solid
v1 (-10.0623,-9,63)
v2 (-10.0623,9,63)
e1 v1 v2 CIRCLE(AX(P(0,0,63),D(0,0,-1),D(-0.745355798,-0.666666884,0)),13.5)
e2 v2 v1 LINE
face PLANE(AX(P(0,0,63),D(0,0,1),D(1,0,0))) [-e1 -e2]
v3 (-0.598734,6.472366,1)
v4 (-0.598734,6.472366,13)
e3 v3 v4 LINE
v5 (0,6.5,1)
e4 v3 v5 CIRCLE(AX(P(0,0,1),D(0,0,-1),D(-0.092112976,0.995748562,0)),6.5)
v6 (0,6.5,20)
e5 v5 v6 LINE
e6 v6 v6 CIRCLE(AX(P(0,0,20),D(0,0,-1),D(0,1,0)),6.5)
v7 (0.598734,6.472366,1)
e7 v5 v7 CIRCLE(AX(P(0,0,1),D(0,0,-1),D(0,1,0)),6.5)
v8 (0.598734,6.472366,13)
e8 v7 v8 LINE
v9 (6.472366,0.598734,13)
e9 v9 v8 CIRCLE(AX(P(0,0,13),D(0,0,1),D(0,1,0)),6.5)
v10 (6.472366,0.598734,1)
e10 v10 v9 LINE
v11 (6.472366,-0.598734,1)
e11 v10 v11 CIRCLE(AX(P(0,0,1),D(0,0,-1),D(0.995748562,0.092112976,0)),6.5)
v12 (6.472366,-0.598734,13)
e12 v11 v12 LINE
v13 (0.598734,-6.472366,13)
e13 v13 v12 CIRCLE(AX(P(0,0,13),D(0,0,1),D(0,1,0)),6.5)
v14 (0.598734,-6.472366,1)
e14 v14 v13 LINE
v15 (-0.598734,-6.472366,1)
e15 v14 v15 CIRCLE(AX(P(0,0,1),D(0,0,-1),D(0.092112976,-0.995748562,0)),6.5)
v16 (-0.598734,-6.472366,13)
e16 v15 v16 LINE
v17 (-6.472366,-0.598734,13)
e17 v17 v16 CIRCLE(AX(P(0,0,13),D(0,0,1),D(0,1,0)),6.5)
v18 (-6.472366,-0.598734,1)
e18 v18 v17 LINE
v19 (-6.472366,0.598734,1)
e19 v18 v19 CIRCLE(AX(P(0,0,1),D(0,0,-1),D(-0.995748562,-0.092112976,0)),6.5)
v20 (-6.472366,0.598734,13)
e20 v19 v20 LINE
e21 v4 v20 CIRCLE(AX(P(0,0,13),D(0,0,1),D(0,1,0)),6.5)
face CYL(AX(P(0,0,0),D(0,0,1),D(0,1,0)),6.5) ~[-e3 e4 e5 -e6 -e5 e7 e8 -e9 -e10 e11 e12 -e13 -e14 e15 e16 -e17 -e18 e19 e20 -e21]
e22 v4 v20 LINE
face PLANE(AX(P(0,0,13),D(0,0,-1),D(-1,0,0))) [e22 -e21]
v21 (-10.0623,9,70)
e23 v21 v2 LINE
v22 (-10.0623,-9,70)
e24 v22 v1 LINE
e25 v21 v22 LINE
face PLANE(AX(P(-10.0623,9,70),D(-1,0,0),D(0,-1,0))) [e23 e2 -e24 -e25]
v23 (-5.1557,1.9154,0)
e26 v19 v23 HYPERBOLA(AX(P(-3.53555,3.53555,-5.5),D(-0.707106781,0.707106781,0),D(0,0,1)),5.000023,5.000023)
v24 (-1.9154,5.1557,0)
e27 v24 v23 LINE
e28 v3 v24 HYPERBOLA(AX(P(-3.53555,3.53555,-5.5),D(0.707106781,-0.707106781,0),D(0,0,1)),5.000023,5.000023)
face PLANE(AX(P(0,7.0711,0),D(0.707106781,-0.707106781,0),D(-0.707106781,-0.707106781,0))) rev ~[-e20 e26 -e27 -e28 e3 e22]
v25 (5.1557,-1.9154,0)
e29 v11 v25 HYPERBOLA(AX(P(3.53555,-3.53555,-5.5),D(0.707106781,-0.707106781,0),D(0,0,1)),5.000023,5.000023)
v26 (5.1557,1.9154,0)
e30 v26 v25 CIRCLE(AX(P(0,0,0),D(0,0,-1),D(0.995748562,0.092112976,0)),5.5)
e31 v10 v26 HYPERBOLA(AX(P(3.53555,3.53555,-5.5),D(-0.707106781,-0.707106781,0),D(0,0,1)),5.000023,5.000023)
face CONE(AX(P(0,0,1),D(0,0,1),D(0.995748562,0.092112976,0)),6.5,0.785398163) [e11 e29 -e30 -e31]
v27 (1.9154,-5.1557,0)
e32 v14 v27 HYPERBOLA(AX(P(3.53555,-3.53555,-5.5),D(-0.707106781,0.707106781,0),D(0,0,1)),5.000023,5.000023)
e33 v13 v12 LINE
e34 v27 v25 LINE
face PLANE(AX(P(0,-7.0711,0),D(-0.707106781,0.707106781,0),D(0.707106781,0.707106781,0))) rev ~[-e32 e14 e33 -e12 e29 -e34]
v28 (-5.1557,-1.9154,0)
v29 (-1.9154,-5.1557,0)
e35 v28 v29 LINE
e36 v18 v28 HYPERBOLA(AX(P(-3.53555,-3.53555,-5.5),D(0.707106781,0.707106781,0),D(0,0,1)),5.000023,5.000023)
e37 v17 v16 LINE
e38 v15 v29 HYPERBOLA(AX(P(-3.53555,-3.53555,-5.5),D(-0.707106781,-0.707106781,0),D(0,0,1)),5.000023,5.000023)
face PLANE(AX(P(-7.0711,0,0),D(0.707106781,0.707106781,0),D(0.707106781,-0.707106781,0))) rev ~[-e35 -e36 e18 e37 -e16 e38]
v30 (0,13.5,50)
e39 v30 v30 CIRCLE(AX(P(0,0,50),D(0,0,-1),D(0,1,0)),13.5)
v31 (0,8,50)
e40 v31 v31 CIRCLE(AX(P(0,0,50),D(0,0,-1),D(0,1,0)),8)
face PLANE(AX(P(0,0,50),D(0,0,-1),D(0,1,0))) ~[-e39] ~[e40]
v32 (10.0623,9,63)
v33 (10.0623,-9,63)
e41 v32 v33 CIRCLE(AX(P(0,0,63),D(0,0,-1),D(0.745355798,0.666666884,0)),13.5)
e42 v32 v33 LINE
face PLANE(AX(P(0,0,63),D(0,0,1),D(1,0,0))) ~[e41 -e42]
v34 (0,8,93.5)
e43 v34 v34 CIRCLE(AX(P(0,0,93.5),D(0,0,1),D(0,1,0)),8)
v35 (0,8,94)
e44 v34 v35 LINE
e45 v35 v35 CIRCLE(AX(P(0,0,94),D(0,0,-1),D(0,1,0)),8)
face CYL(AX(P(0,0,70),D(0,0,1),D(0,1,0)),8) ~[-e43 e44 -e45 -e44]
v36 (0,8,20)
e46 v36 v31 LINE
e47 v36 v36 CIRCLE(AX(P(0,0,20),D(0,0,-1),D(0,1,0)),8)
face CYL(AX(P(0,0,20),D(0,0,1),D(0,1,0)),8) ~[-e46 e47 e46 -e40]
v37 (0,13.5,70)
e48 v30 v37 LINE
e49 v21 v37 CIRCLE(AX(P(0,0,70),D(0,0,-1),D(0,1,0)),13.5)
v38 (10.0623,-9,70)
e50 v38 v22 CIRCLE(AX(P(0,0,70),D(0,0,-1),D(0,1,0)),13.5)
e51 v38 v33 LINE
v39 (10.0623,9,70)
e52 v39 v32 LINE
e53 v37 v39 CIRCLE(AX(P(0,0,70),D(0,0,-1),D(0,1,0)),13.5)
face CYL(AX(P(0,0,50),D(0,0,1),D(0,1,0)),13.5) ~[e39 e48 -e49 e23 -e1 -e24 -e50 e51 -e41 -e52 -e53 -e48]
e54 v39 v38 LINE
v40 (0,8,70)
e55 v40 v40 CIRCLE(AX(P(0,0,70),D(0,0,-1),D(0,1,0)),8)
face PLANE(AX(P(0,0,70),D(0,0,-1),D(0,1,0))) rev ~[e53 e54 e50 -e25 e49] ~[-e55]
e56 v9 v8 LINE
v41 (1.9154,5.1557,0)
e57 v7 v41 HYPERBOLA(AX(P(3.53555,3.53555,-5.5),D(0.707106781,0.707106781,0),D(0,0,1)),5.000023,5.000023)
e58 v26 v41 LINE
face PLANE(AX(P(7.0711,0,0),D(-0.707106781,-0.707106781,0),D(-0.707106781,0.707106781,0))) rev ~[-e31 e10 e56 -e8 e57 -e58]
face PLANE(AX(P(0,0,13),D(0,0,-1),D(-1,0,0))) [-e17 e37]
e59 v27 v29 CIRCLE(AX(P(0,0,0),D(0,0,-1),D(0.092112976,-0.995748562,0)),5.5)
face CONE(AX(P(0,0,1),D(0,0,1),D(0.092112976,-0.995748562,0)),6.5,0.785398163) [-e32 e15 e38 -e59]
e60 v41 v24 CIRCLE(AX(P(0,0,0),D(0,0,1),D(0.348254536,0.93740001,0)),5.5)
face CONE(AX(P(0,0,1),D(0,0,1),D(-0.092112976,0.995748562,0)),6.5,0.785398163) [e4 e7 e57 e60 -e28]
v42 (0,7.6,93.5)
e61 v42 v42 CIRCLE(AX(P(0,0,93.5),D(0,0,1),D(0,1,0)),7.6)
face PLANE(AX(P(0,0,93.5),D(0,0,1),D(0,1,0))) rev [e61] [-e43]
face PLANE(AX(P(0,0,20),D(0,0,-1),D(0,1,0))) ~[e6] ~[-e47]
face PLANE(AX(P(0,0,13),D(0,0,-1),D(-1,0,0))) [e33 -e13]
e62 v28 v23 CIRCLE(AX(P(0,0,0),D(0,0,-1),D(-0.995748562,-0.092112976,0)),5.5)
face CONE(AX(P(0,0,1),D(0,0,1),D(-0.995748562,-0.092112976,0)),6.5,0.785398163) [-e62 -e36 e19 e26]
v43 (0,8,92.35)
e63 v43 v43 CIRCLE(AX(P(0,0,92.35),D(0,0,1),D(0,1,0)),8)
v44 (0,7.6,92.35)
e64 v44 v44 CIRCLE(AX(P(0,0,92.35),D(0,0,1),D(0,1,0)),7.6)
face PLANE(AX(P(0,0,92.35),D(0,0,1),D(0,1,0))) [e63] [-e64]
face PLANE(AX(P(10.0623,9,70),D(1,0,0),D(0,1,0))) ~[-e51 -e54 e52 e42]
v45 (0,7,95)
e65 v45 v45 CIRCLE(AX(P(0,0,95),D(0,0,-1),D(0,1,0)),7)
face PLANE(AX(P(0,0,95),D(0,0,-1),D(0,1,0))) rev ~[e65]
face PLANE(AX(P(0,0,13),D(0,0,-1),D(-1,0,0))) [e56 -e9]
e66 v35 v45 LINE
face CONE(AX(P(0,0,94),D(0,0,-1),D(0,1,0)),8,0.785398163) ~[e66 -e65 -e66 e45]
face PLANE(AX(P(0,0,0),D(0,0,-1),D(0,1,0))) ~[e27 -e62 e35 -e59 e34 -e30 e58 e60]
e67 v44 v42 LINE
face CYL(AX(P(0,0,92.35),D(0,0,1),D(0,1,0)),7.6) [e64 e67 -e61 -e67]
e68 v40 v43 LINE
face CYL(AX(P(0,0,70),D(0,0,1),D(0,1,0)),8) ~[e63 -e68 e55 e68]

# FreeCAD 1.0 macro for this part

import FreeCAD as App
import Part
import Sketcher
Q = App.Units.Quantity


def edges_at(feature, points):
    """Names of the edges that pass closest to the given points."""
    edges = feature.Shape.Edges
    near = lambda p: min(range(len(edges)), key=lambda i: edges[i].distToShape(Part.Vertex(*p))[0])
    return sorted({f"Edge{near(p) + 1}" for p in points})

doc = App.newDocument("Part")
body = doc.addObject("PartDesign::Body", "Body")

# Sketch on YZ plane
sketch1 = body.newObject("Sketcher::SketchObject", "Sketch")
sketch1.AttachmentSupport = (doc.getObject("YZ_Plane"), [""])
sketch1.MapMode = "FlatFace"
sketch1.addGeometry(Part.LineSegment(App.Vector(0, 0, 0), App.Vector(6.5, 0, 0)), False)
sketch1.addGeometry(Part.LineSegment(App.Vector(6.5, 0, 0), App.Vector(6.5, 20, 0)), False)
sketch1.addGeometry(Part.LineSegment(App.Vector(6.5, 20, 0), App.Vector(8, 20, 0)), False)
sketch1.addGeometry(Part.LineSegment(App.Vector(8, 20, 0), App.Vector(8, 50, 0)), False)
sketch1.addGeometry(Part.LineSegment(App.Vector(8, 50, 0), App.Vector(13.5, 50, 0)), False)
sketch1.addGeometry(Part.LineSegment(App.Vector(13.5, 50, 0), App.Vector(13.5, 70, 0)), False)
sketch1.addGeometry(Part.LineSegment(App.Vector(13.5, 70, 0), App.Vector(8, 70, 0)), False)
sketch1.addGeometry(Part.LineSegment(App.Vector(8, 70, 0), App.Vector(8, 95, 0)), False)
sketch1.addGeometry(Part.LineSegment(App.Vector(8, 95, 0), App.Vector(0, 95, 0)), False)
sketch1.addGeometry(Part.LineSegment(App.Vector(0, 95, 0), App.Vector(0, 0, 0)), False)
sketch1.addConstraint(Sketcher.Constraint("Coincident", 0, 2, 1, 1))
sketch1.addConstraint(Sketcher.Constraint("Coincident", 1, 2, 2, 1))
sketch1.addConstraint(Sketcher.Constraint("Coincident", 2, 2, 3, 1))
sketch1.addConstraint(Sketcher.Constraint("Coincident", 3, 2, 4, 1))
sketch1.addConstraint(Sketcher.Constraint("Coincident", 4, 2, 5, 1))
sketch1.addConstraint(Sketcher.Constraint("Coincident", 5, 2, 6, 1))
sketch1.addConstraint(Sketcher.Constraint("Coincident", 6, 2, 7, 1))
sketch1.addConstraint(Sketcher.Constraint("Coincident", 7, 2, 8, 1))
sketch1.addConstraint(Sketcher.Constraint("Coincident", 8, 2, 9, 1))
sketch1.addConstraint(Sketcher.Constraint("Coincident", 9, 2, 0, 1))
sketch1.addConstraint(Sketcher.Constraint("Horizontal", 0))
sketch1.addConstraint(Sketcher.Constraint("Vertical", 1))
sketch1.addConstraint(Sketcher.Constraint("Horizontal", 2))
sketch1.addConstraint(Sketcher.Constraint("Vertical", 3))
sketch1.addConstraint(Sketcher.Constraint("Horizontal", 4))
sketch1.addConstraint(Sketcher.Constraint("Vertical", 5))
sketch1.addConstraint(Sketcher.Constraint("Horizontal", 6))
sketch1.addConstraint(Sketcher.Constraint("Vertical", 7))
sketch1.addConstraint(Sketcher.Constraint("Horizontal", 8))
sketch1.addConstraint(Sketcher.Constraint("Vertical", 9))
sketch1.addConstraint(Sketcher.Constraint("Coincident", 9, 2, -1, 1))
sketch1.addConstraint(Sketcher.Constraint("Vertical", 3, 2, 6, 2))
sketch1.addConstraint(Sketcher.Constraint("Equal", 1, 5))
sketch1.addConstraint(Sketcher.Constraint("DistanceY", 1, 1, 1, 2, Q("20 mm")))
sketch1.addConstraint(Sketcher.Constraint("DistanceY", 3, 1, 3, 2, Q("30 mm")))
sketch1.addConstraint(Sketcher.Constraint("DistanceY", 7, 1, 7, 2, Q("25 mm")))
sketch1.addConstraint(Sketcher.Constraint("DistanceX", 8, 2, 8, 1, Q("8 mm")))
sketch1.addConstraint(Sketcher.Constraint("DistanceX", 0, 1, 0, 2, Q("6.5 mm")))
sketch1.addConstraint(Sketcher.Constraint("DistanceX", 4, 1, 4, 2, Q("5.5 mm")))
revolution = body.newObject("PartDesign::Revolution", "Revolution")
revolution.Profile = sketch1
revolution.ReferenceAxis = (sketch1, ["V_Axis"])
revolution.Angle = 360

# Sketch on XY plane
sketch2 = body.newObject("Sketcher::SketchObject", "Sketch001")
sketch2.AttachmentSupport = (doc.getObject("XY_Plane"), [""])
sketch2.MapMode = "FlatFace"
sketch2.addGeometry(Part.Circle(App.Vector(0, 0, 0), App.Vector(0, 0, 1), 9), False)
sketch2.addGeometry(Part.LineSegment(App.Vector(7, 0, 0), App.Vector(0, 7, 0)), False)
sketch2.addGeometry(Part.LineSegment(App.Vector(0, 7, 0), App.Vector(-7, 0, 0)), False)
sketch2.addGeometry(Part.LineSegment(App.Vector(-7, 0, 0), App.Vector(0, -7, 0)), False)
sketch2.addGeometry(Part.LineSegment(App.Vector(0, -7, 0), App.Vector(7, 0, 0)), False)
sketch2.addConstraint(Sketcher.Constraint("Coincident", 1, 2, 2, 1))
sketch2.addConstraint(Sketcher.Constraint("Coincident", 2, 2, 3, 1))
sketch2.addConstraint(Sketcher.Constraint("Coincident", 3, 2, 4, 1))
sketch2.addConstraint(Sketcher.Constraint("Coincident", 4, 2, 1, 1))
sketch2.addConstraint(Sketcher.Constraint("Coincident", 0, 3, -1, 1))
sketch2.addConstraint(Sketcher.Constraint("Symmetric", 1, 2, 3, 2, -1, 1))
sketch2.addConstraint(Sketcher.Constraint("Symmetric", 2, 2, 4, 2, -1, 1))
sketch2.addConstraint(Sketcher.Constraint("PointOnObject", 1, 2, -2))
sketch2.addConstraint(Sketcher.Constraint("PointOnObject", 2, 2, -1))
sketch2.addConstraint(Sketcher.Constraint("Perpendicular", 1, 2))
sketch2.addConstraint(Sketcher.Constraint("Distance", 1, Q("10 mm")))
sketch2.addConstraint(Sketcher.Constraint("Diameter", 0, Q("18.5736 mm")))
pocket1 = body.newObject("PartDesign::Pocket", "Pocket")
pocket1.Profile = sketch2
pocket1.Length = 13
pocket1.Reversed = True
doc.recompute()

chamfer = body.newObject("PartDesign::Chamfer", "Chamfer")
chamfer.Base = (pocket1, edges_at(pocket1, [
    (-0.3, 6.493, 0),
    (-6.5, 0, 0),
    (6.5, 0, 0),
    (0.3, 6.493, 0),
    (0, -6.5, 0),
]))
chamfer.Size = 1

# Sketch on XY plane
sketch3 = body.newObject("Sketcher::SketchObject", "Sketch002")
sketch3.AttachmentSupport = (doc.getObject("XY_Plane"), [""])
sketch3.MapMode = "FlatFace"
sketch3.AttachmentOffset = App.Placement(App.Vector(0, 0, 70), App.Rotation())
sketch3.addGeometry(Part.LineSegment(App.Vector(-10.1, -9, 0), App.Vector(-10.1, 9, 0)), False)
sketch3.addGeometry(Part.LineSegment(App.Vector(-10.1, 9, 0), App.Vector(-13.5, 9, 0)), False)
sketch3.addGeometry(Part.LineSegment(App.Vector(-13.5, 9, 0), App.Vector(-13.5, -9, 0)), False)
sketch3.addGeometry(Part.LineSegment(App.Vector(-13.5, -9, 0), App.Vector(-10.1, -9, 0)), False)
sketch3.addConstraint(Sketcher.Constraint("Coincident", 0, 2, 1, 1))
sketch3.addConstraint(Sketcher.Constraint("Coincident", 1, 2, 2, 1))
sketch3.addConstraint(Sketcher.Constraint("Coincident", 2, 2, 3, 1))
sketch3.addConstraint(Sketcher.Constraint("Coincident", 3, 2, 0, 1))
sketch3.addConstraint(Sketcher.Constraint("Vertical", 0))
sketch3.addConstraint(Sketcher.Constraint("Horizontal", 1))
sketch3.addConstraint(Sketcher.Constraint("Vertical", 2))
sketch3.addConstraint(Sketcher.Constraint("Horizontal", 3))
sketch3.addConstraint(Sketcher.Constraint("DistanceY", 0, 1, 0, 2, Q("18 mm")))
sketch3.addConstraint(Sketcher.Constraint("DistanceY", -1, 1, 0, 2, Q("9 mm")))
sketch3.addConstraint(Sketcher.Constraint("DistanceX", 1, 2, -1, 1, Q("13.5 mm")))
sketch3.addConstraint(Sketcher.Constraint("DistanceX", 1, 2, 1, 1, Q("3.4377 mm")))
pocket2 = body.newObject("PartDesign::Pocket", "Pocket001")
pocket2.Profile = sketch3
pocket2.Length = 7
doc.recompute()

mirrored = body.newObject("PartDesign::Mirrored", "Mirrored")
mirrored.Originals = [pocket2]
mirrored.MirrorPlane = (doc.getObject("YZ_Plane"), [""])
body.Tip = mirrored

# Sketch on YZ plane
sketch4 = body.newObject("Sketcher::SketchObject", "Sketch003")
sketch4.AttachmentSupport = (doc.getObject("YZ_Plane"), [""])
sketch4.MapMode = "FlatFace"
sketch4.addGeometry(Part.LineSegment(App.Vector(7.6, 92.35, 0), App.Vector(8, 92.35, 0)), False)
sketch4.addGeometry(Part.LineSegment(App.Vector(8, 92.35, 0), App.Vector(8, 93.5, 0)), False)
sketch4.addGeometry(Part.LineSegment(App.Vector(8, 93.5, 0), App.Vector(7.6, 93.5, 0)), False)
sketch4.addGeometry(Part.LineSegment(App.Vector(7.6, 93.5, 0), App.Vector(7.6, 92.35, 0)), False)
sketch4.addConstraint(Sketcher.Constraint("Coincident", 0, 2, 1, 1))
sketch4.addConstraint(Sketcher.Constraint("Coincident", 1, 2, 2, 1))
sketch4.addConstraint(Sketcher.Constraint("Coincident", 2, 2, 3, 1))
sketch4.addConstraint(Sketcher.Constraint("Coincident", 3, 2, 0, 1))
sketch4.addConstraint(Sketcher.Constraint("Horizontal", 0))
sketch4.addConstraint(Sketcher.Constraint("Vertical", 1))
sketch4.addConstraint(Sketcher.Constraint("Horizontal", 2))
sketch4.addConstraint(Sketcher.Constraint("Vertical", 3))
sketch4.addConstraint(Sketcher.Constraint("DistanceX", 0, 1, 0, 2, Q("0.4 mm")))
sketch4.addConstraint(Sketcher.Constraint("DistanceY", 1, 1, 1, 2, Q("1.15 mm")))
sketch4.addConstraint(Sketcher.Constraint("DistanceX", -1, 1, 0, 2, Q("8 mm")))
sketch4.addConstraint(Sketcher.Constraint("DistanceY", -1, 1, 1, 2, Q("93.5 mm")))
groove = body.newObject("PartDesign::Groove", "Groove")
groove.Profile = sketch4
groove.ReferenceAxis = (sketch4, ["V_Axis"])
groove.Angle = 360
doc.recompute()

chamfer2 = body.newObject("PartDesign::Chamfer", "Chamfer001")
chamfer2.Base = (groove, edges_at(groove, [(0, -8, 95)]))
chamfer2.Size = 1

doc.recompute()
